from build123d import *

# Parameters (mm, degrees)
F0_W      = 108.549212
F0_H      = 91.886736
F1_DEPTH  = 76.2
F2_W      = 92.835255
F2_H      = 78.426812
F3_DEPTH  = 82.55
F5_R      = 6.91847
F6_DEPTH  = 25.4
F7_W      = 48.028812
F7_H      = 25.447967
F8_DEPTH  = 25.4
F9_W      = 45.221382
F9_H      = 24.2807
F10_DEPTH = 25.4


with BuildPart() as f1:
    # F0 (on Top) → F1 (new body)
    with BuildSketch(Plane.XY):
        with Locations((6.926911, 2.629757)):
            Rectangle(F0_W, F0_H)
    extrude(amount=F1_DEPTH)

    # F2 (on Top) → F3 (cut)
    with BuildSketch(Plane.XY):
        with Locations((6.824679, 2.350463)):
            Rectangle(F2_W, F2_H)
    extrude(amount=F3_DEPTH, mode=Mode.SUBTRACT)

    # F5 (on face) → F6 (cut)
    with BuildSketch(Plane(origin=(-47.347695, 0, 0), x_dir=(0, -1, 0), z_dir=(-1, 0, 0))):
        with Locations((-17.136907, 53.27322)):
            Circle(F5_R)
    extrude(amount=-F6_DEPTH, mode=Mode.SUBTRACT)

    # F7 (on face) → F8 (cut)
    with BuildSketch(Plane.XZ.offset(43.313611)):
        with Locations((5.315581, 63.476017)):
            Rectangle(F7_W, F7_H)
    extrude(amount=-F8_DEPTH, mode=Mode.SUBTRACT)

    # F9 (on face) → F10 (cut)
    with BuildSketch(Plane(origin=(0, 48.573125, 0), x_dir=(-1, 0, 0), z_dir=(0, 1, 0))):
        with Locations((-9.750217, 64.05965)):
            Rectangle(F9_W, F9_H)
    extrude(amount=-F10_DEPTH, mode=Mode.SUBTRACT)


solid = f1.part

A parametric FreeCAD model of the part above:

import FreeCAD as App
import Part
import Sketcher

V = App.Vector
Q = App.Units.Quantity

doc = App.newDocument("Part")
params = doc.addObject("Spreadsheet::Sheet", "Params")
for row, (alias, value) in enumerate([
    ("pad1_length", "3 in"),
    ("pocket1_length", "3.25 in"),
    ("pocket2_length", "1 in"),
    ("pocket3_length", "1 in"),
    ("pocket4_length", "1 in"),
], start=1):
    params.set(f"A{row}", alias)
    params.set(f"B{row}", "=" + value)
    params.setAlias(f"B{row}", alias)

body = doc.addObject("PartDesign::Body", "Body")

# Sketch on XY plane
sketch1 = body.newObject("Sketcher::SketchObject", "Sketch")
sketch1.AttachmentSupport = (doc.getObject("XY_Plane"), [""])
sketch1.MapMode = "FlatFace"
sketch1.addGeometry(Part.LineSegment(V(-47, 49, 0), V(-47, -43, 0)), False)
sketch1.addGeometry(Part.LineSegment(V(-47, -43, 0), V(61, -43, 0)), False)
sketch1.addGeometry(Part.LineSegment(V(61, -43, 0), V(61, 49, 0)), False)
sketch1.addGeometry(Part.LineSegment(V(61, 49, 0), V(-47, 49, 0)), False)
sketch1.addConstraint(Sketcher.Constraint("Coincident", 0, 2, 1, 1))
sketch1.addConstraint(Sketcher.Constraint("Coincident", 1, 2, 2, 1))
sketch1.addConstraint(Sketcher.Constraint("Coincident", 2, 2, 3, 1))
sketch1.addConstraint(Sketcher.Constraint("Coincident", 3, 2, 0, 1))
sketch1.addConstraint(Sketcher.Constraint("Vertical", 0))
sketch1.addConstraint(Sketcher.Constraint("Horizontal", 1))
sketch1.addConstraint(Sketcher.Constraint("Vertical", 2))
sketch1.addConstraint(Sketcher.Constraint("Horizontal", 3))
sketch1.addConstraint(Sketcher.Constraint("DistanceX", 1, 1, 1, 2, Q("108.549212 mm")))
sketch1.addConstraint(Sketcher.Constraint("DistanceY", 0, 2, 0, 1, Q("91.886736 mm")))
sketch1.addConstraint(Sketcher.Constraint("DistanceY", 0, 2, -1, 1, Q("43.313611 mm")))
sketch1.addConstraint(Sketcher.Constraint("DistanceX", 0, 2, -1, 1, Q("47.347695 mm")))
pad1 = body.newObject("PartDesign::Pad", "Pad")
pad1.Profile = sketch1
pad1.setExpression("Length", "Params.pad1_length")

# Sketch on XY plane
sketch2 = body.newObject("Sketcher::SketchObject", "Sketch001")
sketch2.AttachmentSupport = (doc.getObject("XY_Plane"), [""])
sketch2.MapMode = "FlatFace"
sketch2.addGeometry(Part.LineSegment(V(-40, 42, 0), V(-40, -37, 0)), False)
sketch2.addGeometry(Part.LineSegment(V(-40, -37, 0), V(53, -37, 0)), False)
sketch2.addGeometry(Part.LineSegment(V(53, -37, 0), V(53, 42, 0)), False)
sketch2.addGeometry(Part.LineSegment(V(53, 42, 0), V(-40, 42, 0)), False)
sketch2.addConstraint(Sketcher.Constraint("Coincident", 0, 2, 1, 1))
sketch2.addConstraint(Sketcher.Constraint("Coincident", 1, 2, 2, 1))
sketch2.addConstraint(Sketcher.Constraint("Coincident", 2, 2, 3, 1))
sketch2.addConstraint(Sketcher.Constraint("Coincident", 3, 2, 0, 1))
sketch2.addConstraint(Sketcher.Constraint("Vertical", 0))
sketch2.addConstraint(Sketcher.Constraint("Horizontal", 1))
sketch2.addConstraint(Sketcher.Constraint("Vertical", 2))
sketch2.addConstraint(Sketcher.Constraint("Horizontal", 3))
sketch2.addConstraint(Sketcher.Constraint("DistanceY", 0, 2, 0, 1, Q("78.426812 mm")))
sketch2.addConstraint(Sketcher.Constraint("DistanceX", 1, 1, 1, 2, Q("92.835255 mm")))
sketch2.addConstraint(Sketcher.Constraint("DistanceX", 0, 2, -1, 1, Q("39.592948 mm")))
sketch2.addConstraint(Sketcher.Constraint("DistanceY", -1, 1, 2, 2, Q("41.563869 mm")))
pocket1 = body.newObject("PartDesign::Pocket", "Pocket")
pocket1.Profile = sketch2
pocket1.setExpression("Length", "Params.pocket1_length")
pocket1.Reversed = True

# Sketch on YZ plane
sketch3 = body.newObject("Sketcher::SketchObject", "Sketch002")
sketch3.AttachmentSupport = (doc.getObject("YZ_Plane"), [""])
sketch3.MapMode = "FlatFace"
sketch3.AttachmentOffset = App.Placement(V(0, 0, -47.347695), App.Rotation())
sketch3.addGeometry(Part.Circle(V(17, 53, 0), V(0, 0, 1), 7), False)
sketch3.addConstraint(Sketcher.Constraint("Diameter", 0, Q("13.83694 mm")))
sketch3.addConstraint(Sketcher.Constraint("DistanceY", -1, 1, 0, 3, Q("53.27322 mm")))
sketch3.addConstraint(Sketcher.Constraint("DistanceX", -1, 1, 0, 3, Q("17.136907 mm")))
pocket2 = body.newObject("PartDesign::Pocket", "Pocket001")
pocket2.Profile = sketch3
pocket2.setExpression("Length", "Params.pocket2_length")
pocket2.Reversed = True

# Sketch on XZ plane
sketch4 = body.newObject("Sketcher::SketchObject", "Sketch003")
sketch4.AttachmentSupport = (doc.getObject("XZ_Plane"), [""])
sketch4.MapMode = "FlatFace"
sketch4.AttachmentOffset = App.Placement(V(0, 0, 43.313611), App.Rotation())
sketch4.addGeometry(Part.LineSegment(V(-19, 76, 0), V(-19, 51, 0)), False)
sketch4.addGeometry(Part.LineSegment(V(-19, 51, 0), V(29, 51, 0)), False)
sketch4.addGeometry(Part.LineSegment(V(29, 51, 0), V(29, 76, 0)), False)
sketch4.addGeometry(Part.LineSegment(V(29, 76, 0), V(-19, 76, 0)), False)
sketch4.addConstraint(Sketcher.Constraint("Coincident", 0, 2, 1, 1))
sketch4.addConstraint(Sketcher.Constraint("Coincident", 1, 2, 2, 1))
sketch4.addConstraint(Sketcher.Constraint("Coincident", 2, 2, 3, 1))
sketch4.addConstraint(Sketcher.Constraint("Coincident", 3, 2, 0, 1))
sketch4.addConstraint(Sketcher.Constraint("Vertical", 0))
sketch4.addConstraint(Sketcher.Constraint("Horizontal", 1))
sketch4.addConstraint(Sketcher.Constraint("Vertical", 2))
sketch4.addConstraint(Sketcher.Constraint("Horizontal", 3))
sketch4.addConstraint(Sketcher.Constraint("DistanceY", -1, 1, 2, 2, Q("3 in")))
sketch4.addConstraint(Sketcher.Constraint("DistanceX", 1, 1, 1, 2, Q("48.028812 mm")))
sketch4.addConstraint(Sketcher.Constraint("DistanceY", 0, 2, 0, 1, Q("25.447967 mm")))
sketch4.addConstraint(Sketcher.Constraint("DistanceX", 0, 2, -1, 1, Q("18.698825 mm")))
pocket3 = body.newObject("PartDesign::Pocket", "Pocket002")
pocket3.Profile = sketch4
pocket3.setExpression("Length", "Params.pocket3_length")

# Sketch on XZ plane
sketch5 = body.newObject("Sketcher::SketchObject", "Sketch004")
sketch5.AttachmentSupport = (doc.getObject("XZ_Plane"), [""])
sketch5.MapMode = "FlatFace"
sketch5.AttachmentOffset = App.Placement(V(0, 0, -48.573125), App.Rotation())
sketch5.addGeometry(Part.LineSegment(V(32, 76, 0), V(32, 52, 0)), False)
sketch5.addGeometry(Part.LineSegment(V(32, 52, 0), V(-13, 52, 0)), False)
sketch5.addGeometry(Part.LineSegment(V(-13, 52, 0), V(-13, 76, 0)), False)
sketch5.addGeometry(Part.LineSegment(V(-13, 76, 0), V(32, 76, 0)), False)
sketch5.addConstraint(Sketcher.Constraint("Coincident", 0, 2, 1, 1))
sketch5.addConstraint(Sketcher.Constraint("Coincident", 1, 2, 2, 1))
sketch5.addConstraint(Sketcher.Constraint("Coincident", 2, 2, 3, 1))
sketch5.addConstraint(Sketcher.Constraint("Coincident", 3, 2, 0, 1))
sketch5.addConstraint(Sketcher.Constraint("Vertical", 0))
sketch5.addConstraint(Sketcher.Constraint("Horizontal", 1))
sketch5.addConstraint(Sketcher.Constraint("Vertical", 2))
sketch5.addConstraint(Sketcher.Constraint("Horizontal", 3))
sketch5.addConstraint(Sketcher.Constraint("DistanceY", -1, 1, 2, 2, Q("3 in")))
sketch5.addConstraint(Sketcher.Constraint("DistanceY", 0, 2, 0, 1, Q("24.2807 mm")))
sketch5.addConstraint(Sketcher.Constraint("DistanceX", 1, 2, 1, 1, Q("45.221382 mm")))
sketch5.addConstraint(Sketcher.Constraint("DistanceX", -1, 1, 0, 2, Q("32.360908 mm")))
pocket4 = body.newObject("PartDesign::Pocket", "Pocket003")
pocket4.Profile = sketch5
pocket4.setExpression("Length", "Params.pocket4_length")
pocket4.Reversed = True

doc.recompute()
